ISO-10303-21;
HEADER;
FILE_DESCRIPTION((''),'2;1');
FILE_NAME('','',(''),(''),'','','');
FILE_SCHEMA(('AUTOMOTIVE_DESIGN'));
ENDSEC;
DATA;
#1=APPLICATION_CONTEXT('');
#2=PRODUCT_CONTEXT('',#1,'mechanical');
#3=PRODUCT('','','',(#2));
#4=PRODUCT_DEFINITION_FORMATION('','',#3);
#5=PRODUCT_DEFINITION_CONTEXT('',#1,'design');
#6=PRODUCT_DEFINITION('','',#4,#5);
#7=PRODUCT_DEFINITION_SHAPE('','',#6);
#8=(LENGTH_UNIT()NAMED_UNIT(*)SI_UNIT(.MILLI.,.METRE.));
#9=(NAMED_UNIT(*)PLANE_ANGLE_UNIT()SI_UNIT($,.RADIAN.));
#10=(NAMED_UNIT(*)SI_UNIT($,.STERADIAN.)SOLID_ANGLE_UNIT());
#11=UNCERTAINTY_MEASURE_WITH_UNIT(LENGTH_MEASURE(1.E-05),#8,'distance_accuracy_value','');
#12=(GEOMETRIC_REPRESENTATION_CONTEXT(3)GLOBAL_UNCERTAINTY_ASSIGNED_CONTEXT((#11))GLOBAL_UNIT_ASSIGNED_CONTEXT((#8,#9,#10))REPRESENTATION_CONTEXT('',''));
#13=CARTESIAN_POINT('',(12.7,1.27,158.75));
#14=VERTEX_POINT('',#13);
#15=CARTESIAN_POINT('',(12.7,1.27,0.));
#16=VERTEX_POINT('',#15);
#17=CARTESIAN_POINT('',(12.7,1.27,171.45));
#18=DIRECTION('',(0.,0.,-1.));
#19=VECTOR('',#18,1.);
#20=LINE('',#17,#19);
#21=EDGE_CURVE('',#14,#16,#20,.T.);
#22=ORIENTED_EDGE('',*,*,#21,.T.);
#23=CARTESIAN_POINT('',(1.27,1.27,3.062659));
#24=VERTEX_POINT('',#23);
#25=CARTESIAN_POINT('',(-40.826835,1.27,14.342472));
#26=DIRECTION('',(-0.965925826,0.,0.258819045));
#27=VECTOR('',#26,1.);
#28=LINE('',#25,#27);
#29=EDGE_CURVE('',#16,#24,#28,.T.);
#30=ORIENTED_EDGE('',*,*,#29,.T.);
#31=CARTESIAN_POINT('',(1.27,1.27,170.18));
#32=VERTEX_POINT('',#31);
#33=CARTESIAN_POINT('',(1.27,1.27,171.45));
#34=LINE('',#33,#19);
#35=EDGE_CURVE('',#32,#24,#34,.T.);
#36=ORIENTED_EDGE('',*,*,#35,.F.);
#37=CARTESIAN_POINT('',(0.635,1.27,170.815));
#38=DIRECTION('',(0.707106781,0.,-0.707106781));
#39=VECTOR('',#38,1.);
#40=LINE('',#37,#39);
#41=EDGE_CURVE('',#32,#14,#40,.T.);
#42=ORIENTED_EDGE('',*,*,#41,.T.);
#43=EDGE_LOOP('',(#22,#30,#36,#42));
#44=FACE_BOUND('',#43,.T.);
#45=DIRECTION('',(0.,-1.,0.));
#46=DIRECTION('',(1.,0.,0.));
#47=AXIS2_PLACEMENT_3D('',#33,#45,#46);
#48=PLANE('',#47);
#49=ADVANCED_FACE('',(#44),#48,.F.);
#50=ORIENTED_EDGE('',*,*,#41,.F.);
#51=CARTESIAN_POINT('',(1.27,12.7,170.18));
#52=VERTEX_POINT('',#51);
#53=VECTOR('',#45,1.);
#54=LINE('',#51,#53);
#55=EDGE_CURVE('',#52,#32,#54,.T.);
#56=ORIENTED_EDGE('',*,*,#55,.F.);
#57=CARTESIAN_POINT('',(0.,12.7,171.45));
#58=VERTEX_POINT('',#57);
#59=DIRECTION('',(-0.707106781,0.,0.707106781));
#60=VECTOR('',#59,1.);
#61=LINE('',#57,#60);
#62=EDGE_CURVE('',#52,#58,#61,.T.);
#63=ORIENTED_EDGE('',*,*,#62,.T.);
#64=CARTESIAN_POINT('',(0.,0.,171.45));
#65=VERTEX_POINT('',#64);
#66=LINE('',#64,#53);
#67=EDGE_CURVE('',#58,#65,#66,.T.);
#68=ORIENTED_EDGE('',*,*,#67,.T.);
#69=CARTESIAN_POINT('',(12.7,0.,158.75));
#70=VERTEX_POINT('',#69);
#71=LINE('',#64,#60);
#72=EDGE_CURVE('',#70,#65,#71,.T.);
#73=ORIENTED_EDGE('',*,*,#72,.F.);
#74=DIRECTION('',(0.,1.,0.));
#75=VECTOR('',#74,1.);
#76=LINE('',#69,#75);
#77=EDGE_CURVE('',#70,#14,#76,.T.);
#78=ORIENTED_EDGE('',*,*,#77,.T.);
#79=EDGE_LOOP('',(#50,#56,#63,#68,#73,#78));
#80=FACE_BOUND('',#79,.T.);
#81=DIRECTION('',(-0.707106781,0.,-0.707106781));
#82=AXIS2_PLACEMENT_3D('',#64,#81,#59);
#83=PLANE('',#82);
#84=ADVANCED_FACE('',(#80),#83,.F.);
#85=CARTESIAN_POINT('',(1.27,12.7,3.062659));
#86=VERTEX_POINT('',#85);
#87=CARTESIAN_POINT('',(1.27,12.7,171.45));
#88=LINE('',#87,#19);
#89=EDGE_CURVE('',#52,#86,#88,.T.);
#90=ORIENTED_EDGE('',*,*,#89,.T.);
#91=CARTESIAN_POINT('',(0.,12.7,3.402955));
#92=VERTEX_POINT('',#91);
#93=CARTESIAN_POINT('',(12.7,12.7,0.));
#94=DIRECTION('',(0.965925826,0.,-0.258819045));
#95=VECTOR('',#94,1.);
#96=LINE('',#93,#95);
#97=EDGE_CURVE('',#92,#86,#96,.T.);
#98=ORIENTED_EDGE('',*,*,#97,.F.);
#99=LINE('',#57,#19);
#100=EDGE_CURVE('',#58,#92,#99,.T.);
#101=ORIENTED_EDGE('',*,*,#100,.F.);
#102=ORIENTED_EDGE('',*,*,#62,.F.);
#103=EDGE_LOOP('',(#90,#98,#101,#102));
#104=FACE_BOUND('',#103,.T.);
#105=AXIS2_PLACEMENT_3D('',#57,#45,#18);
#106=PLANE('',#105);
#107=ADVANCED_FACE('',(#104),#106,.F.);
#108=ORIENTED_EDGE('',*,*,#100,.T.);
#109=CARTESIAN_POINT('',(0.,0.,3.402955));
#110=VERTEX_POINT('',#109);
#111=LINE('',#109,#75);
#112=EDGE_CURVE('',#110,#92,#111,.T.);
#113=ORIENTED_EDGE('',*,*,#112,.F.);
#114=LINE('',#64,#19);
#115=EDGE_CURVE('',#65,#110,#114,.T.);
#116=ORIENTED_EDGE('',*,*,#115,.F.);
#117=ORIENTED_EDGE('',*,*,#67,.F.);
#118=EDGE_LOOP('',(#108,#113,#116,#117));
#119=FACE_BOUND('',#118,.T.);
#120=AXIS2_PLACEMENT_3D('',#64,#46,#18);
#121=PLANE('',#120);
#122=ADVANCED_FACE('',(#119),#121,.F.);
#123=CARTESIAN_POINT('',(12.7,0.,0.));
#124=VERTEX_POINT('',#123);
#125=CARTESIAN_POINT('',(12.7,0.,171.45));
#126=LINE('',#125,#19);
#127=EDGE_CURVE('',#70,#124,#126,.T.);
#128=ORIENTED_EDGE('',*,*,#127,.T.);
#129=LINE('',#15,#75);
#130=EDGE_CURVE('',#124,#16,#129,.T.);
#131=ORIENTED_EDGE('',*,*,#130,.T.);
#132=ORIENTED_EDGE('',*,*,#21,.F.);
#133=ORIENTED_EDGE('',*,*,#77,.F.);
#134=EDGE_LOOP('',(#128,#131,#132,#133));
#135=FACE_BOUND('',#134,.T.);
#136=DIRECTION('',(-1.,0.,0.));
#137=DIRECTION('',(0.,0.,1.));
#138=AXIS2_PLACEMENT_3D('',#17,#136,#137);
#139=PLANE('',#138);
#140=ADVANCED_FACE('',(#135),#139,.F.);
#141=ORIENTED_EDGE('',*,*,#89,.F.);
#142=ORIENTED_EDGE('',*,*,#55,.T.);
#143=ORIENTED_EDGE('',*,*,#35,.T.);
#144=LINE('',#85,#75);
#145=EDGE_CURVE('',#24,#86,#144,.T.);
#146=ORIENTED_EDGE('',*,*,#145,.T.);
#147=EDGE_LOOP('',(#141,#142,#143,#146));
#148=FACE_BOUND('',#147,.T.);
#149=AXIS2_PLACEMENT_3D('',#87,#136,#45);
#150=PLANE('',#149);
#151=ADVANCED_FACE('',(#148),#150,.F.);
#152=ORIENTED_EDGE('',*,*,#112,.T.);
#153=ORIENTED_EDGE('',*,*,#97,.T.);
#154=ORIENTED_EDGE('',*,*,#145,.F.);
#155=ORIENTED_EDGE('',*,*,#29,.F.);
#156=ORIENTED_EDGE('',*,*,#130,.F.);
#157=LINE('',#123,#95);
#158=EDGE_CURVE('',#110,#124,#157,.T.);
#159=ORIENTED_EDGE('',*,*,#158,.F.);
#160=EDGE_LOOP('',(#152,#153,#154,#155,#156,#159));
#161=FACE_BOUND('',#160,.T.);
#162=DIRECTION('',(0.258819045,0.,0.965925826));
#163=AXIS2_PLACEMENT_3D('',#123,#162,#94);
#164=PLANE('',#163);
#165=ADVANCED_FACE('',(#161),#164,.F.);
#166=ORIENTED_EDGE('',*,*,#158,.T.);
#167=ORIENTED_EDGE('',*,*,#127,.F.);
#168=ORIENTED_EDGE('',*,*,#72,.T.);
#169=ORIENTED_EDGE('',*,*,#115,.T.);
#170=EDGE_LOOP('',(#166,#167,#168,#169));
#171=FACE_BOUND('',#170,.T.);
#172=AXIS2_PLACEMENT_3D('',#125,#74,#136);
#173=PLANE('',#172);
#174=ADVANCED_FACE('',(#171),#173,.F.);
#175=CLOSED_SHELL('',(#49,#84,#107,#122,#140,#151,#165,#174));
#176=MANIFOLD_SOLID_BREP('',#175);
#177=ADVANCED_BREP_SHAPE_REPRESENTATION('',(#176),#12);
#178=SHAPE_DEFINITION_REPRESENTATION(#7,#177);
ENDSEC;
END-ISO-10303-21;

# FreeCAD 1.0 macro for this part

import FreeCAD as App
import Part
import Sketcher
Q = App.Units.Quantity

doc = App.newDocument("Part")
body = doc.addObject("PartDesign::Body", "Body")

sketch1 = doc.addObject("Sketcher::SketchObject", "Sketch")
body.addObject(sketch1)
sketch1.AttachmentSupport = (doc.XY_Plane, [""])
sketch1.MapMode = "FlatFace"
sketch1.addGeometry(Part.LineSegment(App.Vector(0, 12.7, 0), App.Vector(0, 0, 0)), False)
sketch1.addGeometry(Part.LineSegment(App.Vector(0, 0, 0), App.Vector(12.7, 0, 0)), False)
sketch1.addGeometry(Part.LineSegment(App.Vector(12.7, 0, 0), App.Vector(12.7, 1.27, 0)), False)
sketch1.addGeometry(Part.LineSegment(App.Vector(12.7, 1.27, 0), App.Vector(1.27, 1.27, 0)), False)
sketch1.addGeometry(Part.LineSegment(App.Vector(1.27, 1.27, 0), App.Vector(1.27, 12.7, 0)), False)
sketch1.addGeometry(Part.LineSegment(App.Vector(1.27, 12.7, 0), App.Vector(0, 12.7, 0)), False)
sketch1.addConstraint(Sketcher.Constraint("Coincident", 0, 2, 1, 1))
sketch1.addConstraint(Sketcher.Constraint("Coincident", 1, 2, 2, 1))
sketch1.addConstraint(Sketcher.Constraint("Coincident", 2, 2, 3, 1))
sketch1.addConstraint(Sketcher.Constraint("Coincident", 3, 2, 4, 1))
sketch1.addConstraint(Sketcher.Constraint("Coincident", 4, 2, 5, 1))
sketch1.addConstraint(Sketcher.Constraint("Coincident", 5, 2, 0, 1))
sketch1.addConstraint(Sketcher.Constraint("Vertical", 0))
sketch1.addConstraint(Sketcher.Constraint("Horizontal", 1))
sketch1.addConstraint(Sketcher.Constraint("Vertical", 2))
sketch1.addConstraint(Sketcher.Constraint("Horizontal", 3))
sketch1.addConstraint(Sketcher.Constraint("Vertical", 4))
sketch1.addConstraint(Sketcher.Constraint("Horizontal", 5))
sketch1.addConstraint(Sketcher.Constraint("Coincident", 0, 2, -1, 1))
sketch1.addConstraint(Sketcher.Constraint("Equal", 1, 0))
sketch1.addConstraint(Sketcher.Constraint("Equal", 5, 2))
sketch1.addConstraint(Sketcher.Constraint("DistanceX", 1, 1, 1, 2, Q("0.5 in")))
sketch1.addConstraint(Sketcher.Constraint("DistanceX", 3, 2, 3, 1, Q("0.45 in")))
pad1 = doc.addObject("PartDesign::Pad", "Pad")
body.addObject(pad1)
pad1.Profile = sketch1
pad1.Length = Q("6.75 in")

sketch2 = doc.addObject("Sketcher::SketchObject", "Sketch001")
body.addObject(sketch2)
sketch2.AttachmentSupport = (doc.XZ_Plane, [""])
sketch2.MapMode = "FlatFace"
sketch2.AttachmentOffset = App.Placement(App.Vector(0, 0, -0.05 * 25.4), App.Rotation())
sketch2.addGeometry(Part.LineSegment(App.Vector(12.7, 158.75, 0), App.Vector(0, 171.45, 0)), False)
sketch2.addGeometry(Part.LineSegment(App.Vector(0, 171.45, 0), App.Vector(12.7, 171.45, 0)), False)
sketch2.addGeometry(Part.LineSegment(App.Vector(12.7, 171.45, 0), App.Vector(12.7, 158.75, 0)), False)
sketch2.addGeometry(Part.LineSegment(App.Vector(0, 3.402955, 0), App.Vector(12.7, 0, 0)), False)
sketch2.addGeometry(Part.LineSegment(App.Vector(12.7, 0, 0), App.Vector(0, 0, 0)), False)
sketch2.addGeometry(Part.LineSegment(App.Vector(0, 0, 0), App.Vector(0, 3.402955, 0)), False)
sketch2.addConstraint(Sketcher.Constraint("Coincident", 0, 2, 1, 1))
sketch2.addConstraint(Sketcher.Constraint("Coincident", 1, 2, 2, 1))
sketch2.addConstraint(Sketcher.Constraint("Coincident", 2, 2, 0, 1))
sketch2.addConstraint(Sketcher.Constraint("Coincident", 3, 2, 4, 1))
sketch2.addConstraint(Sketcher.Constraint("Coincident", 4, 2, 5, 1))
sketch2.addConstraint(Sketcher.Constraint("Coincident", 5, 2, 3, 1))
sketch2.addConstraint(Sketcher.Constraint("Horizontal", 1))
sketch2.addConstraint(Sketcher.Constraint("Vertical", 2))
sketch2.addConstraint(Sketcher.Constraint("Horizontal", 4))
sketch2.addConstraint(Sketcher.Constraint("Vertical", 5))
sketch2.addConstraint(Sketcher.Constraint("Coincident", 4, 2, -1, 1))
sketch2.addConstraint(Sketcher.Constraint("PointOnObject", 0, 2, -2))
sketch2.addConstraint(Sketcher.Constraint("Vertical", 2, 2, 3, 2))
sketch2.addConstraint(Sketcher.Constraint("Equal", 4, 2))
sketch2.addConstraint(Sketcher.Constraint("DistanceX", 1, 1, 1, 2, Q("0.5 in")))
sketch2.addConstraint(Sketcher.Constraint("Angle", 3, Q("-15 deg")))
sketch2.addConstraint(Sketcher.Constraint("DistanceY", -1, 1, 0, 2, Q("6.75 in")))
pocket1 = doc.addObject("PartDesign::Pocket", "Pocket")
body.addObject(pocket1)
pocket1.Profile = sketch2
pocket1.Type = "ThroughAll"
pocket1.Midplane = True

doc.recompute()
